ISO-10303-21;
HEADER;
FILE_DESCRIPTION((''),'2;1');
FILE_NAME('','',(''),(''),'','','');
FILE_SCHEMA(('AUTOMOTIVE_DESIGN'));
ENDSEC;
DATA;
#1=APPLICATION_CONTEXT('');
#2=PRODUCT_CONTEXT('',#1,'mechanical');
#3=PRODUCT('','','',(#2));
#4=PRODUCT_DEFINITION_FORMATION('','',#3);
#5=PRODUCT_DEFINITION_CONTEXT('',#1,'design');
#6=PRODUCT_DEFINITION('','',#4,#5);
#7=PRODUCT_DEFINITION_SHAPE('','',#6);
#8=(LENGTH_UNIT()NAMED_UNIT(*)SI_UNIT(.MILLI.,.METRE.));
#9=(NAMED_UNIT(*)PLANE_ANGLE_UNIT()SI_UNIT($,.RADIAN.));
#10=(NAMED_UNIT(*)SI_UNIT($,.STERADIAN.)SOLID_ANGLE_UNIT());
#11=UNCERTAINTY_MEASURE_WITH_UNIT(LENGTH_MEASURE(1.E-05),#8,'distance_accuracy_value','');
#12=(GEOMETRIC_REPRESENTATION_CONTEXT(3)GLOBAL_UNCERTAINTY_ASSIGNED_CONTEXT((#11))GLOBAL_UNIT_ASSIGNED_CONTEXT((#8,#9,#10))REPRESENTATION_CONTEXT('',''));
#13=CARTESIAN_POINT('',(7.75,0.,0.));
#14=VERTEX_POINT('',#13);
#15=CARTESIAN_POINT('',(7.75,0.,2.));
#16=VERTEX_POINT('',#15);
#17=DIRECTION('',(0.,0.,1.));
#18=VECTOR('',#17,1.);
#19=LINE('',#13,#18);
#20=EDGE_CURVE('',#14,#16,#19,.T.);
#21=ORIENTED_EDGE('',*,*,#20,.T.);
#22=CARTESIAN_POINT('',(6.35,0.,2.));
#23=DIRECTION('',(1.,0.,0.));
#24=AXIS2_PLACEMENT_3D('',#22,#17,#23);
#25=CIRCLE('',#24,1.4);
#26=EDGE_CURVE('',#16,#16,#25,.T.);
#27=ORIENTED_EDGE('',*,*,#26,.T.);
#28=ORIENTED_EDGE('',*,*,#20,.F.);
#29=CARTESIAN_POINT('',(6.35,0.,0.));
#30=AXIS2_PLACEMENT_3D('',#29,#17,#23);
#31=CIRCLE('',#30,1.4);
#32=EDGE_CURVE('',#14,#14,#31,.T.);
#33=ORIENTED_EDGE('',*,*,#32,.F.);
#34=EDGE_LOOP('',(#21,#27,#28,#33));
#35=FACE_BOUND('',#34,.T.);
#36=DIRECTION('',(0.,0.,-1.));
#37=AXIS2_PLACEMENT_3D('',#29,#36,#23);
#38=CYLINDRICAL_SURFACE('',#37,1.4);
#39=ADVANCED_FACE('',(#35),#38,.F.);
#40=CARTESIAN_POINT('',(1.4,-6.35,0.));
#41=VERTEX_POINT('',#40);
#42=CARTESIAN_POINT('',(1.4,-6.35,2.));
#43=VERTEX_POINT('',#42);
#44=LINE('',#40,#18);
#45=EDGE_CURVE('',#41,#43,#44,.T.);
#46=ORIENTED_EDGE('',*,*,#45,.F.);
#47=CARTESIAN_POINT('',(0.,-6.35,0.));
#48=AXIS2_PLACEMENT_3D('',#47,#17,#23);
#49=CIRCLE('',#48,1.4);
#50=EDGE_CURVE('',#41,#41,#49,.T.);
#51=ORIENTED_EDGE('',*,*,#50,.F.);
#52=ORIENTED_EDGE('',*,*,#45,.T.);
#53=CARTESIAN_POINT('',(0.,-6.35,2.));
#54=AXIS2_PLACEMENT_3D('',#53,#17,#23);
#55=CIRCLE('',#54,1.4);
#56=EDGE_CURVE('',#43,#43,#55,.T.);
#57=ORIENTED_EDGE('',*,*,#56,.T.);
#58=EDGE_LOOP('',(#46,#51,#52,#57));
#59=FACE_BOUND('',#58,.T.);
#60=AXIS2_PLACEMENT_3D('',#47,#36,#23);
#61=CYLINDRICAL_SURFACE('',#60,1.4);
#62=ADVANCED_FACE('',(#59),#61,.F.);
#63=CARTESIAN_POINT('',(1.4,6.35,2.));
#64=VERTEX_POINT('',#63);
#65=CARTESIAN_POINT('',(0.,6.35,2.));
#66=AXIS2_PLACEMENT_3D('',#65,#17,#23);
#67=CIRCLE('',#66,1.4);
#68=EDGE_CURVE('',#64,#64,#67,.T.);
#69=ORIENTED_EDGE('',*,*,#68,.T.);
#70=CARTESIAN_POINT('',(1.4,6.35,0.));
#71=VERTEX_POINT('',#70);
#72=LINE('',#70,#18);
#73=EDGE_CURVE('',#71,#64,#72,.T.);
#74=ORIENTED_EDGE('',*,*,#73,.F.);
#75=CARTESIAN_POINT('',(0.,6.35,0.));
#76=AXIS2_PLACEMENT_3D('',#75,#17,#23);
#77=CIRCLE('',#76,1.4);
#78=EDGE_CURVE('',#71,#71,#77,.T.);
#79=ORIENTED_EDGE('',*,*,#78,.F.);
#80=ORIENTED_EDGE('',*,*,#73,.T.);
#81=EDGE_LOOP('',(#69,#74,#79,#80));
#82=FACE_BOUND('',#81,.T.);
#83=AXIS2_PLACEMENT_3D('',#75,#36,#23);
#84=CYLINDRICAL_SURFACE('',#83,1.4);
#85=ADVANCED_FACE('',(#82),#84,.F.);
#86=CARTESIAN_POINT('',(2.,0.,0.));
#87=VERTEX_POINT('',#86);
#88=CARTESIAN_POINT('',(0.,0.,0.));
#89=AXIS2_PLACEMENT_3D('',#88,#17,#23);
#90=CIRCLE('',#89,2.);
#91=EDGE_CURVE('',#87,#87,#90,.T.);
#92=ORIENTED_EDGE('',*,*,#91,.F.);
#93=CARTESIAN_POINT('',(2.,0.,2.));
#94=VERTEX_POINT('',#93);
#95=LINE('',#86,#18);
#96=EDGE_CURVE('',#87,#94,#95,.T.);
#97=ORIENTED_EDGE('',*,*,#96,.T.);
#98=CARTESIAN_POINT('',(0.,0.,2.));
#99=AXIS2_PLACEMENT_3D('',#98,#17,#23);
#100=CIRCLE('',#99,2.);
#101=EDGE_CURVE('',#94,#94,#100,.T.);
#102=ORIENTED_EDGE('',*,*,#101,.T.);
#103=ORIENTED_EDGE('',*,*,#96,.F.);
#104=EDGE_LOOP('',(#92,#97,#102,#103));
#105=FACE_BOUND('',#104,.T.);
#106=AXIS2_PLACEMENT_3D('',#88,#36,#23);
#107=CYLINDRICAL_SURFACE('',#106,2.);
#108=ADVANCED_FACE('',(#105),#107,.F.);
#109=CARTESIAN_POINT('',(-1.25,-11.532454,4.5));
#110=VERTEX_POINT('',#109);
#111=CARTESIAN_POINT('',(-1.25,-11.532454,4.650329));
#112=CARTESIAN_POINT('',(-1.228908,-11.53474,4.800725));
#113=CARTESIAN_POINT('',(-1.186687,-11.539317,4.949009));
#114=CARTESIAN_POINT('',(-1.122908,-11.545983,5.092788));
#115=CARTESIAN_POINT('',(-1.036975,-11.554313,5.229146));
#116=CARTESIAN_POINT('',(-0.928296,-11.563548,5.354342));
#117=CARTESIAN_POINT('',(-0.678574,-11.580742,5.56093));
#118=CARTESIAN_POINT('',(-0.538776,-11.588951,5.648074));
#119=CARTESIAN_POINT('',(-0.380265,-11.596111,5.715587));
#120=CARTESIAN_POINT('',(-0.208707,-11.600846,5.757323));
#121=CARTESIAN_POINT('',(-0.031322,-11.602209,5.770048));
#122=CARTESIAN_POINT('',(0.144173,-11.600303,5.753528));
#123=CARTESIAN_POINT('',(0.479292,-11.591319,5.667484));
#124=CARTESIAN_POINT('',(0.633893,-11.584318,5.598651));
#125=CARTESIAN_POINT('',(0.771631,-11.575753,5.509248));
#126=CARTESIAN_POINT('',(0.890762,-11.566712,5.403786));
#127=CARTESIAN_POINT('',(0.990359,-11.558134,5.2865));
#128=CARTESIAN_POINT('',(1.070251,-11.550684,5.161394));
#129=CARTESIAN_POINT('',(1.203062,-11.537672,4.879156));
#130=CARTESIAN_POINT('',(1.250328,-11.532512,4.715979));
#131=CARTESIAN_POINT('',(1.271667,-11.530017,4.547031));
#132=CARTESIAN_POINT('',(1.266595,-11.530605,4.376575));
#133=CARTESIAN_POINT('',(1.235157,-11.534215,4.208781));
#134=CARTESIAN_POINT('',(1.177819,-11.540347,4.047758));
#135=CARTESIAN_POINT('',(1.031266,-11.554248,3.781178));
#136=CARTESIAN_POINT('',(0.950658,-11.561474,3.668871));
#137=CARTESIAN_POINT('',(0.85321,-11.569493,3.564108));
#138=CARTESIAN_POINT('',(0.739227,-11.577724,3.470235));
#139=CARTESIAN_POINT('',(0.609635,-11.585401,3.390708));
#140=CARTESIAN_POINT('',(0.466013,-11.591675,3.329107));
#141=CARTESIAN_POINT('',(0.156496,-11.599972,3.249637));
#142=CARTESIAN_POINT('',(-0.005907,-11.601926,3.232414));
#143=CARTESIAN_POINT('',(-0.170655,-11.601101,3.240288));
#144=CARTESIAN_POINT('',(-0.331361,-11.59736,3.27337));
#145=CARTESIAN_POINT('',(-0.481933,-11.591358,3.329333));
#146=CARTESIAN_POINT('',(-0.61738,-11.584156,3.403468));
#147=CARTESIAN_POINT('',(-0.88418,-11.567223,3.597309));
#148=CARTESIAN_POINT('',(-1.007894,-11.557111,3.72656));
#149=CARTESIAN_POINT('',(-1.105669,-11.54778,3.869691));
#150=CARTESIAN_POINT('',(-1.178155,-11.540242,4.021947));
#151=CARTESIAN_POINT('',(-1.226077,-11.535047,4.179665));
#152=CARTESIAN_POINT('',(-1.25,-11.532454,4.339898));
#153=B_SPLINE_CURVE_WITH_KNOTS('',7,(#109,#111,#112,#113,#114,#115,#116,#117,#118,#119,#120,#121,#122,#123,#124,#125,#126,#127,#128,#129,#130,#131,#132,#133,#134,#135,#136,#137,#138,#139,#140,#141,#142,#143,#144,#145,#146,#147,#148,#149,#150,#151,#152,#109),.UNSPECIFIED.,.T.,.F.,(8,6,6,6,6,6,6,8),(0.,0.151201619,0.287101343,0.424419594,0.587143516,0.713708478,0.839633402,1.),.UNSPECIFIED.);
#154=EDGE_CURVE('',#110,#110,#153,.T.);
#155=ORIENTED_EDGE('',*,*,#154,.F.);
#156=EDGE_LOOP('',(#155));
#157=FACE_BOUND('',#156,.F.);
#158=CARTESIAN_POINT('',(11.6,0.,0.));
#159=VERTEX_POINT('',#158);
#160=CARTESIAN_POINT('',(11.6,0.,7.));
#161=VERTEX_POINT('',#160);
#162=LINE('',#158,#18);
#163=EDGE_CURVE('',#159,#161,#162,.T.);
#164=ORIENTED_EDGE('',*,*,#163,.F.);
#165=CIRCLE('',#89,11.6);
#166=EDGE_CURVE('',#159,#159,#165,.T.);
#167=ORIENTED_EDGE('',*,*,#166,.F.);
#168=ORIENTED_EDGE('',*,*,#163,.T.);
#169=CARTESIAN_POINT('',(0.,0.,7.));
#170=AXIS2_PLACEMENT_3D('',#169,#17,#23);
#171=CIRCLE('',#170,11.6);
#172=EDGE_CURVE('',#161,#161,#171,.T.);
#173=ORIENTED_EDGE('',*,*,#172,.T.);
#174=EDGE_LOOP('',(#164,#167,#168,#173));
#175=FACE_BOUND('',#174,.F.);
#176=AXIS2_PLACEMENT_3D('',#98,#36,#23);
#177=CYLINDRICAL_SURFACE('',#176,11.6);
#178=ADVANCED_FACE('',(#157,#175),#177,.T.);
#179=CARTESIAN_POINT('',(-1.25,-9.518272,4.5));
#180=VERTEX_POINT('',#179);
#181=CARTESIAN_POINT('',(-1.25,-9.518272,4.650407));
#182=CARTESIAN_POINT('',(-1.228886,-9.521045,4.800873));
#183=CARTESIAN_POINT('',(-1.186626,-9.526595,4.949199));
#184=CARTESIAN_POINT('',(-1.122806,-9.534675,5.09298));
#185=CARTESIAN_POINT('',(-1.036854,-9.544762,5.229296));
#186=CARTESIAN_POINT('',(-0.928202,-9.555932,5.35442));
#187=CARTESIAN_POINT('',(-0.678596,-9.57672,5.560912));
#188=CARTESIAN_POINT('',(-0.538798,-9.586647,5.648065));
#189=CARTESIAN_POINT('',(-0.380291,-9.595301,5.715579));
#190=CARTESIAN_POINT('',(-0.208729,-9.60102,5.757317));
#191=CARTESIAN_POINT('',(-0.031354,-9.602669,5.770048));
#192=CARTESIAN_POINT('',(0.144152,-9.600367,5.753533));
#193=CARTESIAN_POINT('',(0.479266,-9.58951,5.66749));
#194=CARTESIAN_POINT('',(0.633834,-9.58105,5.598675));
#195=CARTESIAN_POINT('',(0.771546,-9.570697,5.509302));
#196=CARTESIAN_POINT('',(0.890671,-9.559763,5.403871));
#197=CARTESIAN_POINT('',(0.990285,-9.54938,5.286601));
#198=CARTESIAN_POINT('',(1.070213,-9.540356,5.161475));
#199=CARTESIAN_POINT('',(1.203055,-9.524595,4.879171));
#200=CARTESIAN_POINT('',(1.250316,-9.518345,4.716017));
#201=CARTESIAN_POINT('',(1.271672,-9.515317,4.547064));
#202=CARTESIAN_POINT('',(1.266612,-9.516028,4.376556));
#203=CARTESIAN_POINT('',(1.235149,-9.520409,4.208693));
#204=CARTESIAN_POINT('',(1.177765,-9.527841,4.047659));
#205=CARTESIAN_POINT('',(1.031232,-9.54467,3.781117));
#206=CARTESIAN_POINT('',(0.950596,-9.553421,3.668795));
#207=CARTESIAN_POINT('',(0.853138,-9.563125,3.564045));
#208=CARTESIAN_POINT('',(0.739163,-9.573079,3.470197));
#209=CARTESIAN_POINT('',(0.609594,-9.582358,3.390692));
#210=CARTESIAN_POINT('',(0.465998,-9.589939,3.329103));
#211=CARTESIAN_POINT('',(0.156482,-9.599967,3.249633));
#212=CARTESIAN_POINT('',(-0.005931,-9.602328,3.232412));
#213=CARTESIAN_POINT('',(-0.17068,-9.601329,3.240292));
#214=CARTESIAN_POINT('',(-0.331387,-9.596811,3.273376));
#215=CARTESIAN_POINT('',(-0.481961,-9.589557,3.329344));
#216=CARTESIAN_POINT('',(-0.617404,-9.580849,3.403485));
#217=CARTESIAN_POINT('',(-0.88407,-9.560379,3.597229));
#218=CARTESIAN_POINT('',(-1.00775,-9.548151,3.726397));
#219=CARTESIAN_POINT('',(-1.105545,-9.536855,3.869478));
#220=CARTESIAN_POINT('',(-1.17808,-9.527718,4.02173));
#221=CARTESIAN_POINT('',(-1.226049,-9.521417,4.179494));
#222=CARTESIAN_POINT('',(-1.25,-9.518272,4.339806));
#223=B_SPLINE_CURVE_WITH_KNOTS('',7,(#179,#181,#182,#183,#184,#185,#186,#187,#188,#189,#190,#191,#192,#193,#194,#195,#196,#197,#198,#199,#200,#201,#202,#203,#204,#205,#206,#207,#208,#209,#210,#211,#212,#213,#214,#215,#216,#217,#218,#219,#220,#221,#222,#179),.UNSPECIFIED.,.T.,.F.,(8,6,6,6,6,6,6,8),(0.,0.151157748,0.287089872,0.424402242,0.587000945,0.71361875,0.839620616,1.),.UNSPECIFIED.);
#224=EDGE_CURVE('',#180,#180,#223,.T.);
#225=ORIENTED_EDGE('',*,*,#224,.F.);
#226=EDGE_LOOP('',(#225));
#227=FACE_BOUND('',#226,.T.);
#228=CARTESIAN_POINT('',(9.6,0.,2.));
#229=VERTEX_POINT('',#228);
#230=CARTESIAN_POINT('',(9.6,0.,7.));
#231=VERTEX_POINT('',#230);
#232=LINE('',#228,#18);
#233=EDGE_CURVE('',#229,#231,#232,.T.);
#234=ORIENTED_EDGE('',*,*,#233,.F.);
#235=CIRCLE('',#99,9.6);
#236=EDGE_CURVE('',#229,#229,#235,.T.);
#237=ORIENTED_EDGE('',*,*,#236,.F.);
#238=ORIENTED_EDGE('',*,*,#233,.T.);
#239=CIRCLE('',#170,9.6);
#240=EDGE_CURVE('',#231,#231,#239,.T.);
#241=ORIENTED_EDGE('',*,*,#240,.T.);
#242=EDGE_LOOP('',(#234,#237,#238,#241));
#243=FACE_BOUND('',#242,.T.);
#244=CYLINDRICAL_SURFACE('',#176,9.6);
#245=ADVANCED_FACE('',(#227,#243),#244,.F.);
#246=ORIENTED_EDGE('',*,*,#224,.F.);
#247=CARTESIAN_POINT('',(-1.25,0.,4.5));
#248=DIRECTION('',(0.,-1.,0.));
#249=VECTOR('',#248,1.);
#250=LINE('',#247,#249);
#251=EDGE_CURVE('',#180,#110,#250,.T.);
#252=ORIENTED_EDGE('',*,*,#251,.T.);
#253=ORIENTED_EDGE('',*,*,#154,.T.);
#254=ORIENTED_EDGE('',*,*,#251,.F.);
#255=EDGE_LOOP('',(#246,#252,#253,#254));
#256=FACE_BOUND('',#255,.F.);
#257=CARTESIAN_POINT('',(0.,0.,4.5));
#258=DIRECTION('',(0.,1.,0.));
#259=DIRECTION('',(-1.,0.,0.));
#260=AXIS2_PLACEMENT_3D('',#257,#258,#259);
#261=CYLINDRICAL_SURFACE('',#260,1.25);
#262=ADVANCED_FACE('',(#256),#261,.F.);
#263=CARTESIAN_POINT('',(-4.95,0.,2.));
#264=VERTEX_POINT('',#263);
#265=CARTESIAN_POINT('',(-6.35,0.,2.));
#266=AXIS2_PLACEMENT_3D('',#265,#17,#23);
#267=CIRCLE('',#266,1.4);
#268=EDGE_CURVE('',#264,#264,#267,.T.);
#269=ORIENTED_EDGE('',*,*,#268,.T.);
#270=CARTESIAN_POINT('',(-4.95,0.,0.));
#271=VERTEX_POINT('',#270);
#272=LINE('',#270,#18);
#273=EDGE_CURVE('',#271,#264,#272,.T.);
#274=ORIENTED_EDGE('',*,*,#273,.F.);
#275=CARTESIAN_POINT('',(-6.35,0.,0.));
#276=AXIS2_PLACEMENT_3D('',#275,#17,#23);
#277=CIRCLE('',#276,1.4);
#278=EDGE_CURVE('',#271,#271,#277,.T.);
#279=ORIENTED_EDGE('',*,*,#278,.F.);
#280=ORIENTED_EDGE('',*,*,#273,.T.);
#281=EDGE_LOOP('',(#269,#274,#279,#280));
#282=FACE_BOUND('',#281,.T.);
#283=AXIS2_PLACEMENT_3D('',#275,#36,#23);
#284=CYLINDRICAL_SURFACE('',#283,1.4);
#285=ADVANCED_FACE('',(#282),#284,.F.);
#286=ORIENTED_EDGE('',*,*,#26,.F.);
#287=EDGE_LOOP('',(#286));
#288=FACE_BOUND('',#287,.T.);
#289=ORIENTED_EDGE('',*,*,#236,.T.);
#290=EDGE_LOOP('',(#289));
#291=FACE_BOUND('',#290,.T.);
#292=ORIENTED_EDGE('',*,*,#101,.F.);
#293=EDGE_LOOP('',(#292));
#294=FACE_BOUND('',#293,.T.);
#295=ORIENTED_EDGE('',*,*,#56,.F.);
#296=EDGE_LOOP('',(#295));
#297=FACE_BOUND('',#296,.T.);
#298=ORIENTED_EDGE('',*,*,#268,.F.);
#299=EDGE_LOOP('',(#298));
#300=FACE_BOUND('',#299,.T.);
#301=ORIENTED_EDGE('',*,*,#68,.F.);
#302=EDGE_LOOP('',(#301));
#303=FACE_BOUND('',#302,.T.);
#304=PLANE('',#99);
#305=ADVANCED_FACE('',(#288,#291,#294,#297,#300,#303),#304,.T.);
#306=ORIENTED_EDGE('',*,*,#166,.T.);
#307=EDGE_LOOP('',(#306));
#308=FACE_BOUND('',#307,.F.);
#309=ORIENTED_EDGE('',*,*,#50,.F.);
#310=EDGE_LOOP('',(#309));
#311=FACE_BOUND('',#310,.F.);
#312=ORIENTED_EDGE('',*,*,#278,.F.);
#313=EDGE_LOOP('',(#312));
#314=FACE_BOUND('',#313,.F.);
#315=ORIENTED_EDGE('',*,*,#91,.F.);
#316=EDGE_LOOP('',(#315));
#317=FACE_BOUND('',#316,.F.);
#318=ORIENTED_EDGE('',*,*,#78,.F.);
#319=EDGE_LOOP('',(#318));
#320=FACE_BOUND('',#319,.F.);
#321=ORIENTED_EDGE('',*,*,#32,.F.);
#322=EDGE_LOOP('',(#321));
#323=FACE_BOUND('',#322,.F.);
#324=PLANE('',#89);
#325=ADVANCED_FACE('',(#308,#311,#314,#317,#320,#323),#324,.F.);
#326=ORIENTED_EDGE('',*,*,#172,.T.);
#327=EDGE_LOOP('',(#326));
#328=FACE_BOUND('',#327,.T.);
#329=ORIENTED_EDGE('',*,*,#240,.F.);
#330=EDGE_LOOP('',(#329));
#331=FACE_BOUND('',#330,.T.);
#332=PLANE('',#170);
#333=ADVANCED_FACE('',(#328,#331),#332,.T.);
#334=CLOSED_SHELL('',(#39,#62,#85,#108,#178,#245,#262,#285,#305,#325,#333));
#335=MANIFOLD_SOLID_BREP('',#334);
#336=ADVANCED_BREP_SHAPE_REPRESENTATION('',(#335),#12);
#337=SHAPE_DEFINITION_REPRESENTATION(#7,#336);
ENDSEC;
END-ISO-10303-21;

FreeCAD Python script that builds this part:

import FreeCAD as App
import Part
import Sketcher
from FreeCAD import Vector
Q = App.Units.Quantity

doc = App.newDocument("Part")
body = doc.addObject("PartDesign::Body", "Body")

sketch1 = body.newObject("Sketcher::SketchObject", "Sketch")
sketch1.AttachmentSupport = (doc.getObject("XY_Plane"), [""])
sketch1.MapMode = "FlatFace"
sketch1.addGeometry([
    Part.Circle(Vector(0, 0, 0), Vector(0, 0, 1), 11.6),
    Part.Circle(Vector(0, -6.35, 0), Vector(0, 0, 1), 1.4),
    Part.Circle(Vector(-6.35, 0, 0), Vector(0, 0, 1), 1.4),
    Part.Circle(Vector(6.35, 0, 0), Vector(0, 0, 1), 1.4),
    Part.Circle(Vector(0, 6.35, 0), Vector(0, 0, 1), 1.4),
    Part.Circle(Vector(0, 0, 0), Vector(0, 0, 1), 2),
], False)
sketch1.addConstraint([
    Sketcher.Constraint("Coincident", 0, 3, -1, 1),
    Sketcher.Constraint("Coincident", 5, 3, -1, 1),
    Sketcher.Constraint("Equal", 1, 2),
    Sketcher.Constraint("Equal", 2, 3),
    Sketcher.Constraint("Equal", 3, 4),
    Sketcher.Constraint("Symmetric", 2, 3, 3, 3, -1, 1),
    Sketcher.Constraint("Symmetric", 1, 3, 4, 3, -1, 1),
    Sketcher.Constraint("PointOnObject", 1, 3, -2),
    Sketcher.Constraint("PointOnObject", 2, 3, -1),
    Sketcher.Constraint("Diameter", 5, Q("4 mm")),
    Sketcher.Constraint("Diameter", 1, Q("2.8 mm")),
    Sketcher.Constraint("Diameter", 0, Q("23.2 mm")),
    Sketcher.Constraint("DistanceX", 2, 3, 3, 3, Q("12.7 mm")),
    Sketcher.Constraint("DistanceY", 1, 3, 4, 3, Q("12.7 mm")),
])
pad1 = body.newObject("PartDesign::Pad", "Pad")
pad1.Profile = sketch1
pad1.Length = 2

sketch2 = body.newObject("Sketcher::SketchObject", "Sketch001")
sketch2.AttachmentSupport = (doc.getObject("XY_Plane"), [""])
sketch2.MapMode = "FlatFace"
sketch2.AttachmentOffset = App.Placement(Vector(0, 0, 2), App.Rotation())
sketch2.addGeometry([
    Part.Circle(Vector(0, 0, 0), Vector(0, 0, 1), 11.6),
    Part.Circle(Vector(0, 0, 0), Vector(0, 0, 1), 9.6),
], False)
sketch2.addConstraint([
    Sketcher.Constraint("Coincident", 0, 3, -1, 1),
    Sketcher.Constraint("Coincident", 1, 3, -1, 1),
    Sketcher.Constraint("Diameter", 1, Q("19.2 mm")),
    Sketcher.Constraint("Diameter", 0, Q("23.2 mm")),
])
pad2 = body.newObject("PartDesign::Pad", "Pad001")
pad2.Profile = sketch2
pad2.Length = 5

sketch3 = body.newObject("Sketcher::SketchObject", "Sketch002")
sketch3.AttachmentSupport = (doc.getObject("XZ_Plane"), [""])
sketch3.MapMode = "FlatFace"
sketch3.addGeometry(Part.Circle(Vector(0, 4.5, 0), Vector(0, 0, 1), 1.25), False)
sketch3.addConstraint([
    Sketcher.Constraint("PointOnObject", 0, 3, -2),
    Sketcher.Constraint("Diameter", 0, Q("2.5 mm")),
    Sketcher.Constraint("DistanceY", -1, 1, 0, 3, Q("4.5 mm")),
])
pocket1 = body.newObject("PartDesign::Pocket", "Pocket")
pocket1.Profile = sketch3
pocket1.Type = "ThroughAll"
pocket1.Reversed = True

doc.recompute()
